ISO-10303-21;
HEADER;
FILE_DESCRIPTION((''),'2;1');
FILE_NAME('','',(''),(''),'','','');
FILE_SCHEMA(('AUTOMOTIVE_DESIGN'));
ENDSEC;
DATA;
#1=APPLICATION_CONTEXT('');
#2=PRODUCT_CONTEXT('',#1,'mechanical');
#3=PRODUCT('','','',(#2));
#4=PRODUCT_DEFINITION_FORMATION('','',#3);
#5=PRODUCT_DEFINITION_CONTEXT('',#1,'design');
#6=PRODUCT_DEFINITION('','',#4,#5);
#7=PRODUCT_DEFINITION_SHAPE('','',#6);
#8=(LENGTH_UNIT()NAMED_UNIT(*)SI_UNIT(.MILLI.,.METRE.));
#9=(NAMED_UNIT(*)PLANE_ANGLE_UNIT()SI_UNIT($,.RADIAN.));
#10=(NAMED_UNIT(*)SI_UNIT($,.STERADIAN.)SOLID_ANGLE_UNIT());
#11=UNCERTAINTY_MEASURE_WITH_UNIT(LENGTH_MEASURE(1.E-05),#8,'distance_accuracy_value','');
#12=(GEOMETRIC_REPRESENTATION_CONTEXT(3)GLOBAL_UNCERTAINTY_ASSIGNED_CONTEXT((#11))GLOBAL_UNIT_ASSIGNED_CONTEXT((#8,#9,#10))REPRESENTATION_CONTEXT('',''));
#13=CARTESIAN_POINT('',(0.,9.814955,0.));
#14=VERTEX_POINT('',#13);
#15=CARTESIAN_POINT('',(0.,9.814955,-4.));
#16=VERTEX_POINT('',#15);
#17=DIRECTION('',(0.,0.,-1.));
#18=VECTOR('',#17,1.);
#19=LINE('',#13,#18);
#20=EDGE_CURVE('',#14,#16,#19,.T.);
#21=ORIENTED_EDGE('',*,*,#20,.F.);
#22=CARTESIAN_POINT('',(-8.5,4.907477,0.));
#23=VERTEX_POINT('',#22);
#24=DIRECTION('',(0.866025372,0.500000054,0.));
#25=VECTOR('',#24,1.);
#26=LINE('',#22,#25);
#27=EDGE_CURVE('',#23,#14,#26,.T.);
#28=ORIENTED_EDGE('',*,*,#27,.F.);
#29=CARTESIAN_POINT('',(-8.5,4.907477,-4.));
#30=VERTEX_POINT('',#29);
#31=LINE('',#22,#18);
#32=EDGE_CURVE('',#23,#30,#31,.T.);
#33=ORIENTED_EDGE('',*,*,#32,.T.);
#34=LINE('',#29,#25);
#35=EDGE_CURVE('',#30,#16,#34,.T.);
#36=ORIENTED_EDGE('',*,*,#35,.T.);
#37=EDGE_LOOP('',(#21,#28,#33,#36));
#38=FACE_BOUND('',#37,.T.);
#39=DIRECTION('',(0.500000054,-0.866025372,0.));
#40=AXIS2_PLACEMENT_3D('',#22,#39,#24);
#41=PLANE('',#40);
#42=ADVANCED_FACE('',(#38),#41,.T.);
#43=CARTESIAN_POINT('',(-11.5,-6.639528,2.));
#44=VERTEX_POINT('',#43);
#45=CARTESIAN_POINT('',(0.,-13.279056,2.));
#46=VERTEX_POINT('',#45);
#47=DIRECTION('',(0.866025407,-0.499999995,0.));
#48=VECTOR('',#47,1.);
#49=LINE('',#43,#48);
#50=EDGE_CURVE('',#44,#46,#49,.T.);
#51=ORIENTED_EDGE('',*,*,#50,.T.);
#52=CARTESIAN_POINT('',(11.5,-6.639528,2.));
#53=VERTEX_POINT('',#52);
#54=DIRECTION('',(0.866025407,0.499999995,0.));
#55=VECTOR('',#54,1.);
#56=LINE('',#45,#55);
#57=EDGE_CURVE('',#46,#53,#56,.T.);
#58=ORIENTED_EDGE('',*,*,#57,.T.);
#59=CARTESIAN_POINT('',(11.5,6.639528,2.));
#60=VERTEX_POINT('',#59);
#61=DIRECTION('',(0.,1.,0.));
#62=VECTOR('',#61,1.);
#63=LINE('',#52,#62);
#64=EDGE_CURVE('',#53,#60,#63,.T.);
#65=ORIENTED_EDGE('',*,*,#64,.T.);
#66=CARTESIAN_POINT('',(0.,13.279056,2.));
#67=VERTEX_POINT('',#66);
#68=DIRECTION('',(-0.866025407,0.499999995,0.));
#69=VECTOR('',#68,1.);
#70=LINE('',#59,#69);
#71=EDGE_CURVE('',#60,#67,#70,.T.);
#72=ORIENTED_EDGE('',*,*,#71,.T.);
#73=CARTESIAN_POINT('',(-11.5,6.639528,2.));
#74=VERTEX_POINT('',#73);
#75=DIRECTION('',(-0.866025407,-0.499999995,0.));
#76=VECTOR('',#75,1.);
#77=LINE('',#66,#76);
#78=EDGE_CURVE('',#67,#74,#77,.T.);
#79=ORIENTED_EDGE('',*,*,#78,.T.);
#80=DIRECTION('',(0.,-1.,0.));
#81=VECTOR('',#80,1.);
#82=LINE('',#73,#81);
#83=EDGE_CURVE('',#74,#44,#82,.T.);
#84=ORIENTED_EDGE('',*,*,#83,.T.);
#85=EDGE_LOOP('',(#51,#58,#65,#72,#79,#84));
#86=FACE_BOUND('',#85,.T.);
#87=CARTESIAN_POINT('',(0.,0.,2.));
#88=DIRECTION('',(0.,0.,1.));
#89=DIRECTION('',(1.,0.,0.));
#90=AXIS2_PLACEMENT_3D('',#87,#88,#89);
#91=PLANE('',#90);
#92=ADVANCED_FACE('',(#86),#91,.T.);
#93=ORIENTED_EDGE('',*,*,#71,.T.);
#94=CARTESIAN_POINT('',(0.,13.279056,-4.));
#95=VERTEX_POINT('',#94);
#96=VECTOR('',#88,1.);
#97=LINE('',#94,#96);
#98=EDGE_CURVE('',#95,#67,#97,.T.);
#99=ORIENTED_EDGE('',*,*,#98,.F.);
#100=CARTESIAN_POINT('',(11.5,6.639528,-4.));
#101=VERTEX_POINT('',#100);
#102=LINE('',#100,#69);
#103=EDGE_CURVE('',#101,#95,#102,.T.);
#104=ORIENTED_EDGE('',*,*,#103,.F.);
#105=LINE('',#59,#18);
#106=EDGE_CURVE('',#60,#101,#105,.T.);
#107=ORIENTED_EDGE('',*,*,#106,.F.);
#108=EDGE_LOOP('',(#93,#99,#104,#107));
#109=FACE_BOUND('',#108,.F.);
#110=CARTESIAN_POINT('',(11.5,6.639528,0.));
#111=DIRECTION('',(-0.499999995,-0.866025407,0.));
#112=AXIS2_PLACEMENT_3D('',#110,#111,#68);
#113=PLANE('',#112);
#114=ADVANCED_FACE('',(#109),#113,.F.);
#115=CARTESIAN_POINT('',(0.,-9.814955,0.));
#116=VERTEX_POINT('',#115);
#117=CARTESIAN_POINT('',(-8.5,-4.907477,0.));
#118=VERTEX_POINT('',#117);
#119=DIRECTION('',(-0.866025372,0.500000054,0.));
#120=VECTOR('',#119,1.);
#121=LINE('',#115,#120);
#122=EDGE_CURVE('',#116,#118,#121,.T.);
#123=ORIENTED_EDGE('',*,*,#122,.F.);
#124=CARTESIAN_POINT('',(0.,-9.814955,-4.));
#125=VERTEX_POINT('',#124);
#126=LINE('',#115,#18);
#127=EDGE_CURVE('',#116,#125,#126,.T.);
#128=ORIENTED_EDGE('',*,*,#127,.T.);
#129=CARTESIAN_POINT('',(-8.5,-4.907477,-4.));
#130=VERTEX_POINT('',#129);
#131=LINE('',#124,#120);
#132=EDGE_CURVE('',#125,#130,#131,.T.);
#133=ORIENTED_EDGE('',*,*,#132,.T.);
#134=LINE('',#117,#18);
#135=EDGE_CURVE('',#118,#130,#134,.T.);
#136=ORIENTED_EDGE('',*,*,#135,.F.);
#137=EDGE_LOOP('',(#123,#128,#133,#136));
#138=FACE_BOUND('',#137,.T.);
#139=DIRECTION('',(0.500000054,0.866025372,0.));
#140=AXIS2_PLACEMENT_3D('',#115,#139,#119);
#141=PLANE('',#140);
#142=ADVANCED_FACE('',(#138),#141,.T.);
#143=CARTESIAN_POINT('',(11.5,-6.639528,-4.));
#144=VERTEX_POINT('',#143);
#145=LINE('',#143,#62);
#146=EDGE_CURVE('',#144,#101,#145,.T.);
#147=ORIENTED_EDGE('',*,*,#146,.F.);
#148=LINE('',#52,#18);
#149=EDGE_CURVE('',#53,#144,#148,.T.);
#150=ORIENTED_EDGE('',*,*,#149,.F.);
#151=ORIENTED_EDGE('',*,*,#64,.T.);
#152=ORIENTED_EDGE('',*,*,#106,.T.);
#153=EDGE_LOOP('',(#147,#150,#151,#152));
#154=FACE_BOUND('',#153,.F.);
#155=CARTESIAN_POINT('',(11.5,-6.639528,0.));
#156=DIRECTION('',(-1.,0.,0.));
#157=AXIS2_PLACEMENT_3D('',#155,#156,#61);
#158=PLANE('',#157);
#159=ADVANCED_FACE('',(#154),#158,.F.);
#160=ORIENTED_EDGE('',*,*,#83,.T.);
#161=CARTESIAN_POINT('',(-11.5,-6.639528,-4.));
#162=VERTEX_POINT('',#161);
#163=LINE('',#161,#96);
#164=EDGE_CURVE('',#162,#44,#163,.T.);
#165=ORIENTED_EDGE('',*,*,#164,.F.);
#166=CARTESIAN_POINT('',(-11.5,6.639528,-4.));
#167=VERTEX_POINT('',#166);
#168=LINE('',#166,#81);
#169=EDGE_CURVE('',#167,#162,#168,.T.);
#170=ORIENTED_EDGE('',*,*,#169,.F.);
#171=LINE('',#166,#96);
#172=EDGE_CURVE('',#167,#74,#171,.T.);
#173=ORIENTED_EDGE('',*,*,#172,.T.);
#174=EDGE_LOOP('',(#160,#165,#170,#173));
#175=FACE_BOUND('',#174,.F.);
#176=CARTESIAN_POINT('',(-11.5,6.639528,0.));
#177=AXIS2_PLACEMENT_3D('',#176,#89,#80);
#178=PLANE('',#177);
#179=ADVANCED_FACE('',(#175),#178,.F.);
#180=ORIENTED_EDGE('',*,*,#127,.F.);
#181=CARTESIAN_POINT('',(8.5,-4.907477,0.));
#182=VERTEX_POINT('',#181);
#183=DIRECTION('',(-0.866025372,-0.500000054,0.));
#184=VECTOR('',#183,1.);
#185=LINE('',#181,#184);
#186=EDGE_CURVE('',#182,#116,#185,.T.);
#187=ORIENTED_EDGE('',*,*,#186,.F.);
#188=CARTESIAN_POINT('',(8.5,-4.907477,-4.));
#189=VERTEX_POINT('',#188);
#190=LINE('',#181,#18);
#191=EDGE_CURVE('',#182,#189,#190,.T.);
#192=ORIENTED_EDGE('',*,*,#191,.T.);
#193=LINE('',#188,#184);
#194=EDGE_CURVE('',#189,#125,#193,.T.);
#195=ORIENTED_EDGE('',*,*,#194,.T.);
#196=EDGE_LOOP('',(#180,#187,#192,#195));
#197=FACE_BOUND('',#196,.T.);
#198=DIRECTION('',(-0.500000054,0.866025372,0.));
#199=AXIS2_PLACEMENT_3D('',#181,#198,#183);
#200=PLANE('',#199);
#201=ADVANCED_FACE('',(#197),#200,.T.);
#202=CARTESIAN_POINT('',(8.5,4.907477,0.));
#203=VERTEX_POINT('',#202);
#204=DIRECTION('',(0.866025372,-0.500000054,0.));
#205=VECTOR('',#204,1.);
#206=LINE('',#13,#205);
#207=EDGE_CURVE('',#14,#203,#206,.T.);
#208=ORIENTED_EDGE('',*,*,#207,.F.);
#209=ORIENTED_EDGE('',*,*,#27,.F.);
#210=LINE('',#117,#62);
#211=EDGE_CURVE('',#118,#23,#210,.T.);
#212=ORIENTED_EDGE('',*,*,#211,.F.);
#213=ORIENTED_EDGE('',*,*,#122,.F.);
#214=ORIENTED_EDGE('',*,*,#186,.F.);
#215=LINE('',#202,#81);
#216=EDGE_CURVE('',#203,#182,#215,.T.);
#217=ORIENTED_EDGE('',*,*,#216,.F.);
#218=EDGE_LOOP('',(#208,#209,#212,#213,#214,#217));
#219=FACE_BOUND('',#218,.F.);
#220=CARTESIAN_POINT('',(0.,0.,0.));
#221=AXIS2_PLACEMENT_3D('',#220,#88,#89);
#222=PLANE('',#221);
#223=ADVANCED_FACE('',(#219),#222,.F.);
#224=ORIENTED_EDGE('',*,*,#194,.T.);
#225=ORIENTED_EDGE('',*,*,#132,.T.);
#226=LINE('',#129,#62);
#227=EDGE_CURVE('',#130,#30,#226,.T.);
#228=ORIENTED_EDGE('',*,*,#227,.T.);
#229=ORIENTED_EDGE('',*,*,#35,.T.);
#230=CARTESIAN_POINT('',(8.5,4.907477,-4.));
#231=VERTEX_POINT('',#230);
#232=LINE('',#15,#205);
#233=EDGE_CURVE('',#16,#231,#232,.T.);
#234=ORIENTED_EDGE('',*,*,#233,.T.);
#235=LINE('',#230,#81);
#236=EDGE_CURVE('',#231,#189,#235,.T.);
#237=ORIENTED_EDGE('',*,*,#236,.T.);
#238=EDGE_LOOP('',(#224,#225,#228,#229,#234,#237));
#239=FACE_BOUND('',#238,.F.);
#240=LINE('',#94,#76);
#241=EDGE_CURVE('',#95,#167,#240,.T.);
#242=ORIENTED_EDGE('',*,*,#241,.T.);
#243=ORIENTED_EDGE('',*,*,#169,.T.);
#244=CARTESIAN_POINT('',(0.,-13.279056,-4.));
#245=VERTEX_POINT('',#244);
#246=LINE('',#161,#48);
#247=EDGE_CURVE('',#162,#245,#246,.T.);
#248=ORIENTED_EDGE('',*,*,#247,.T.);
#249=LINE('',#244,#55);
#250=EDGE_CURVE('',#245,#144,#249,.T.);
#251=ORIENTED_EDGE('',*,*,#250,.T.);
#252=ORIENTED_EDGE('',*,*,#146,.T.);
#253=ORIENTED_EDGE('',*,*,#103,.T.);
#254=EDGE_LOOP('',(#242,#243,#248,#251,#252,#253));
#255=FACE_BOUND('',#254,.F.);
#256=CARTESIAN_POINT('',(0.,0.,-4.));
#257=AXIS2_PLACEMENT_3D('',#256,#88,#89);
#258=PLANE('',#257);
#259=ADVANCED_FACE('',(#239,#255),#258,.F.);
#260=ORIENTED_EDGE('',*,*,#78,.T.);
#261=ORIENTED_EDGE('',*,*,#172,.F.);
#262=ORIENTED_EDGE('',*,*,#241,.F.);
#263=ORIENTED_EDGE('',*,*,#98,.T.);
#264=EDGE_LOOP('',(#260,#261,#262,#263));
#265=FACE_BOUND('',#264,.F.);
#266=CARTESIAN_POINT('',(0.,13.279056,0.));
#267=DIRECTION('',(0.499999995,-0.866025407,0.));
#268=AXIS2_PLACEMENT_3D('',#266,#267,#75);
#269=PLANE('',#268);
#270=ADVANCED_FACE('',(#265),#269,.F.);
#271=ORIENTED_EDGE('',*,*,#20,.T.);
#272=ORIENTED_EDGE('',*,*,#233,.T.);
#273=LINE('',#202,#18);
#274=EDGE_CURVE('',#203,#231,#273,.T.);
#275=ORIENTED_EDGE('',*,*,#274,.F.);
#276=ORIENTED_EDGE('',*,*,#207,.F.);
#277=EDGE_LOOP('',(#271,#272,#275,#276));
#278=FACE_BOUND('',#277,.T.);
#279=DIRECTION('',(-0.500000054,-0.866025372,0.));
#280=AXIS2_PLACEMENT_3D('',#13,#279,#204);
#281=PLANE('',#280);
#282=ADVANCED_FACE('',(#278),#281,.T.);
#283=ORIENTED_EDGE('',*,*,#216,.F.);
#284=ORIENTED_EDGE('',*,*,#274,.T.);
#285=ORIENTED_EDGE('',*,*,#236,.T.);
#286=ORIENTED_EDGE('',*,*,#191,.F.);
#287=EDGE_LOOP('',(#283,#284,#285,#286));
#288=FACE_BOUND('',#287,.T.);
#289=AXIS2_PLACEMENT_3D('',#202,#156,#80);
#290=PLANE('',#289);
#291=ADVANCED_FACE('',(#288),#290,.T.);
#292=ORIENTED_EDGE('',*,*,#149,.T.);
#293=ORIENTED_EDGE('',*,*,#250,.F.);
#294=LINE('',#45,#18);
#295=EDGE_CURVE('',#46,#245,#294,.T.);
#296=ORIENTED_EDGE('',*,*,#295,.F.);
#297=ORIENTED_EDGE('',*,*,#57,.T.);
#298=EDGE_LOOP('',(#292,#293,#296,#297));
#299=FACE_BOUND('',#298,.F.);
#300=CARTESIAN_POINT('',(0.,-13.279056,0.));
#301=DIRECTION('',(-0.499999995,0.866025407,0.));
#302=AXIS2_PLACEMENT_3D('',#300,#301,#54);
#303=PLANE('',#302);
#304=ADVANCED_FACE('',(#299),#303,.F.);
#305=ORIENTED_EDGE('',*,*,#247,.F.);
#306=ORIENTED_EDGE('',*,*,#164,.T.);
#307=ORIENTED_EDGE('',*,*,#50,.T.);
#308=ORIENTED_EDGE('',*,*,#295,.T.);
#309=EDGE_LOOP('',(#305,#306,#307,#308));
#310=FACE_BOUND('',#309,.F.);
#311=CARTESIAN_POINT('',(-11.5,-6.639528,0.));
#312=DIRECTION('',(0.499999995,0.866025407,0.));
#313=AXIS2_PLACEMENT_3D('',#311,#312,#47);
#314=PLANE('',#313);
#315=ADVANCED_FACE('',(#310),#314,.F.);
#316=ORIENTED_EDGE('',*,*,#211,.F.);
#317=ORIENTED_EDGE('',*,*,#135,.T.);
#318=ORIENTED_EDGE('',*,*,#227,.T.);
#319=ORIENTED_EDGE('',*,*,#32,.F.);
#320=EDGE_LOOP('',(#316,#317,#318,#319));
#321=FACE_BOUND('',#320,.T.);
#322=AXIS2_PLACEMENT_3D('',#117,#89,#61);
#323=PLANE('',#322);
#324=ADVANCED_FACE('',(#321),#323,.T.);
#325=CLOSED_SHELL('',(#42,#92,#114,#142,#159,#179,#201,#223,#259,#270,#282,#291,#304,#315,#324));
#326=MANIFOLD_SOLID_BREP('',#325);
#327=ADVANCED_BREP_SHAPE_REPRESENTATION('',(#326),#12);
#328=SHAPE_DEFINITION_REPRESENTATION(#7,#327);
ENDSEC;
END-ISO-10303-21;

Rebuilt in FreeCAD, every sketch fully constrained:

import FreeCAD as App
import Part
import Sketcher

V = App.Vector
Q = App.Units.Quantity

doc = App.newDocument("Part")
body = doc.addObject("PartDesign::Body", "Body")

# Sketch on XY plane
sketch1 = doc.addObject("Sketcher::SketchObject", "Sketch")
body.addObject(sketch1)
sketch1.AttachmentSupport = (doc.XY_Plane, [""])
sketch1.MapMode = "FlatFace"
sketch1.addGeometry([
    Part.LineSegment(V(11.5, 6.639528, 0), V(0, 13.279056, 0)),  # 0
    Part.LineSegment(V(0, 13.279056, 0), V(-11.5, 6.639528, 0)),  # 1
    Part.LineSegment(V(-11.5, 6.639528, 0), V(-11.5, -6.639528, 0)),  # 2
    Part.LineSegment(V(-11.5, -6.639528, 0), V(0, -13.279056, 0)),  # 3
    Part.LineSegment(V(0, -13.279056, 0), V(11.5, -6.639528, 0)),  # 4
    Part.LineSegment(V(11.5, -6.639528, 0), V(11.5, 6.639528, 0)),  # 5
    Part.LineSegment(V(-8.5, 4.907477, 0), V(0, 9.814955, 0)),  # 6
    Part.LineSegment(V(0, 9.814955, 0), V(8.5, 4.907477, 0)),  # 7
    Part.LineSegment(V(8.5, 4.907477, 0), V(8.5, -4.907477, 0)),  # 8
    Part.LineSegment(V(8.5, -4.907477, 0), V(0, -9.814955, 0)),  # 9
    Part.LineSegment(V(0, -9.814955, 0), V(-8.5, -4.907477, 0)),  # 10
    Part.LineSegment(V(-8.5, -4.907477, 0), V(-8.5, 4.907477, 0)),  # 11
], False)
sketch1.addConstraint([
    Sketcher.Constraint("Coincident", 0, 2, 1, 1),
    Sketcher.Constraint("Coincident", 1, 2, 2, 1),
    Sketcher.Constraint("Coincident", 2, 2, 3, 1),
    Sketcher.Constraint("Coincident", 3, 2, 4, 1),
    Sketcher.Constraint("Coincident", 4, 2, 5, 1),
    Sketcher.Constraint("Coincident", 5, 2, 0, 1),
    Sketcher.Constraint("Coincident", 6, 2, 7, 1),
    Sketcher.Constraint("Coincident", 7, 2, 8, 1),
    Sketcher.Constraint("Coincident", 8, 2, 9, 1),
    Sketcher.Constraint("Coincident", 9, 2, 10, 1),
    Sketcher.Constraint("Coincident", 10, 2, 11, 1),
    Sketcher.Constraint("Coincident", 11, 2, 6, 1),
    Sketcher.Constraint("Vertical", 2),
    Sketcher.Constraint("Vertical", 5),
    Sketcher.Constraint("Vertical", 8),
    Sketcher.Constraint("Vertical", 11),
    Sketcher.Constraint("Symmetric", 0, 2, 3, 2, -1, 1),
    Sketcher.Constraint("Symmetric", 1, 2, 4, 2, -1, 1),
    Sketcher.Constraint("Symmetric", 6, 2, 9, 2, -1, 1),
    Sketcher.Constraint("Symmetric", 7, 2, 10, 2, -1, 1),
    Sketcher.Constraint("PointOnObject", 0, 2, -2),
    Sketcher.Constraint("PointOnObject", 6, 2, -2),
    Sketcher.Constraint("Parallel", 0, 3),
    Sketcher.Constraint("Parallel", 4, 6),
    Sketcher.Constraint("Parallel", 3, 7),
    Sketcher.Constraint("Parallel", 6, 9),
    Sketcher.Constraint("Horizontal", 2, 2, 4, 2),
    Sketcher.Constraint("Angle", 0, Q("150 deg")),
    Sketcher.Constraint("DistanceX", 2, 2, 4, 2, Q("23 mm")),
    Sketcher.Constraint("DistanceX", 7, 2, 5, 2, Q("3 mm")),
    Sketcher.Constraint("DistanceY", 6, 2, 0, 2, Q("3.464101 mm")),
    Sketcher.Constraint("DistanceY", 2, 2, 2, 1, Q("13.279056 mm")),
])
pad1 = doc.addObject("PartDesign::Pad", "Pad")
body.addObject(pad1)
pad1.Profile = sketch1
pad1.Length = 4
pad1.Reversed = True

# Sketch on XY plane
sketch2 = doc.addObject("Sketcher::SketchObject", "Sketch001")
body.addObject(sketch2)
sketch2.AttachmentSupport = (doc.XY_Plane, [""])
sketch2.MapMode = "FlatFace"
sketch2.addGeometry([
    Part.LineSegment(V(11.5, 6.639528, 0), V(0, 13.279056, 0)),  # 0
    Part.LineSegment(V(0, 13.279056, 0), V(-11.5, 6.639528, 0)),  # 1
    Part.LineSegment(V(-11.5, 6.639528, 0), V(-11.5, -6.639528, 0)),  # 2
    Part.LineSegment(V(-11.5, -6.639528, 0), V(0, -13.279056, 0)),  # 3
    Part.LineSegment(V(0, -13.279056, 0), V(11.5, -6.639528, 0)),  # 4
    Part.LineSegment(V(11.5, -6.639528, 0), V(11.5, 6.639528, 0)),  # 5
], False)
sketch2.addConstraint([
    Sketcher.Constraint("Coincident", 0, 2, 1, 1),
    Sketcher.Constraint("Coincident", 1, 2, 2, 1),
    Sketcher.Constraint("Coincident", 2, 2, 3, 1),
    Sketcher.Constraint("Coincident", 3, 2, 4, 1),
    Sketcher.Constraint("Coincident", 4, 2, 5, 1),
    Sketcher.Constraint("Coincident", 5, 2, 0, 1),
    Sketcher.Constraint("Vertical", 2),
    Sketcher.Constraint("Vertical", 5),
    Sketcher.Constraint("Symmetric", 0, 2, 3, 2, -1, 1),
    Sketcher.Constraint("Symmetric", 1, 2, 4, 2, -1, 1),
    Sketcher.Constraint("PointOnObject", 0, 2, -2),
    Sketcher.Constraint("Parallel", 0, 3),
    Sketcher.Constraint("Horizontal", 2, 2, 4, 2),
    Sketcher.Constraint("Angle", 0, Q("150 deg")),
    Sketcher.Constraint("DistanceX", 2, 2, 4, 2, Q("23 mm")),
    Sketcher.Constraint("DistanceY", 2, 2, 2, 1, Q("13.279056 mm")),
])
pad2 = doc.addObject("PartDesign::Pad", "Pad001")
body.addObject(pad2)
pad2.Profile = sketch2
pad2.Length = 2

doc.recompute()
